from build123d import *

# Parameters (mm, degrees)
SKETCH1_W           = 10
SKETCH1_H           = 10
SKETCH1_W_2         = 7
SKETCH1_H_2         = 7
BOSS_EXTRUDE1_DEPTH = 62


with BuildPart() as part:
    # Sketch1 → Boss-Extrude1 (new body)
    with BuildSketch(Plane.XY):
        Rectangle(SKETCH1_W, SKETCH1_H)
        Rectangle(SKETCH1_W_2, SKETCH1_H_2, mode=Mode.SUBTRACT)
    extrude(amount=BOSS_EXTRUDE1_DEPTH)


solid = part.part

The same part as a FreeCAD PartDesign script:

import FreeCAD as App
import Part
import Sketcher

V = App.Vector
Q = App.Units.Quantity


def add_polygon(sketch, points):
    """Adds a closed chain of lines whose ends are joined by coincident constraints."""
    first, n = sketch.GeometryCount, len(points)
    for a, b in zip(points, points[1:] + points[:1]):
        sketch.addGeometry(Part.LineSegment(App.Vector(*a, 0), App.Vector(*b, 0)), False)
    for i in range(n):
        sketch.addConstraint(Sketcher.Constraint("Coincident", first + i, 2, first + (i + 1) % n, 1))

doc = App.newDocument("Part")
body = doc.addObject("PartDesign::Body", "Body")

# Sketch on XY plane
sketch1 = body.newObject("Sketcher::SketchObject", "Sketch")
sketch1.AttachmentSupport = (doc.getObject("XY_Plane"), [""])
sketch1.MapMode = "FlatFace"
add_polygon(sketch1, [(-5, 5), (-5, -5), (5, -5), (5, 5)])  # lines 0-3
add_polygon(sketch1, [(4, -4), (-4, -4), (-4, 4), (4, 4)])  # lines 4-7
sketch1.addConstraint(Sketcher.Constraint("Vertical", 0))
sketch1.addConstraint(Sketcher.Constraint("Horizontal", 1))
sketch1.addConstraint(Sketcher.Constraint("Vertical", 2))
sketch1.addConstraint(Sketcher.Constraint("Horizontal", 3))
sketch1.addConstraint(Sketcher.Constraint("Horizontal", 4))
sketch1.addConstraint(Sketcher.Constraint("Vertical", 5))
sketch1.addConstraint(Sketcher.Constraint("Horizontal", 6))
sketch1.addConstraint(Sketcher.Constraint("Vertical", 7))
sketch1.addConstraint(Sketcher.Constraint("Symmetric", 0, 2, 2, 2, -1, 1))
sketch1.addConstraint(Sketcher.Constraint("Symmetric", 4, 2, 6, 2, -1, 1))
sketch1.addConstraint(Sketcher.Constraint("Equal", 3, 0))
sketch1.addConstraint(Sketcher.Constraint("Equal", 6, 5))
sketch1.addConstraint(Sketcher.Constraint("DistanceX", 1, 1, 1, 2, Q("10 mm")))
sketch1.addConstraint(Sketcher.Constraint("DistanceX", 4, 2, 4, 1, Q("7 mm")))
pad1 = body.newObject("PartDesign::Pad", "Pad")
pad1.Profile = sketch1
pad1.Length = 62

doc.recompute()
